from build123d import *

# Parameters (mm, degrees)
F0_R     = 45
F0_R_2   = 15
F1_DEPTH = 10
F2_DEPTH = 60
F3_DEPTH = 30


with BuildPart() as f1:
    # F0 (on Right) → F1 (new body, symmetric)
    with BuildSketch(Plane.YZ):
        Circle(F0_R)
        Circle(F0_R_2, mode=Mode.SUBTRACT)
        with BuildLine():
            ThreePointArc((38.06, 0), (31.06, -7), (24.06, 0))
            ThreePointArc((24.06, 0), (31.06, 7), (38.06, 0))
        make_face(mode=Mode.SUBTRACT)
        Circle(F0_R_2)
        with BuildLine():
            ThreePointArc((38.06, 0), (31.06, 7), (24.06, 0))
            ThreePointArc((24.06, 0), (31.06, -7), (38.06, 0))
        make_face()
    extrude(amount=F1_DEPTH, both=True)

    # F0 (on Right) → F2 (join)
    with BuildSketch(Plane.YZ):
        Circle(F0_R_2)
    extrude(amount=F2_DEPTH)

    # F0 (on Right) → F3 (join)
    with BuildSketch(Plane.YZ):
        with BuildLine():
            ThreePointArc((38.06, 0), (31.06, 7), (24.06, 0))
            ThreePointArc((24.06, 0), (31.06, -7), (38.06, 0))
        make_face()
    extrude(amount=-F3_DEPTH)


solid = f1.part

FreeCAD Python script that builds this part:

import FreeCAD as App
import Part
import Sketcher

doc = App.newDocument("Part")
body = doc.addObject("PartDesign::Body", "Body")

# Sketch on YZ plane
sketch1 = body.newObject("Sketcher::SketchObject", "Sketch")
sketch1.AttachmentSupport = (doc.getObject("YZ_Plane"), [""])
sketch1.MapMode = "FlatFace"
sketch1.addGeometry(Part.Circle(App.Vector(0, 0, 0), App.Vector(0, 0, 1), 45), False)
sketch1.addConstraint(Sketcher.Constraint("Coincident", 0, 3, -1, 1))
sketch1.addConstraint(Sketcher.Constraint("Diameter", 0, 90.0))
pad1 = body.newObject("PartDesign::Pad", "Pad")
pad1.Profile = sketch1
pad1.Length = 20
pad1.Midplane = True

# Sketch on YZ plane
sketch2 = body.newObject("Sketcher::SketchObject", "Sketch001")
sketch2.AttachmentSupport = (doc.getObject("YZ_Plane"), [""])
sketch2.MapMode = "FlatFace"
sketch2.addGeometry(Part.Circle(App.Vector(0, 0, 0), App.Vector(0, 0, 1), 15), False)
sketch2.addConstraint(Sketcher.Constraint("Coincident", 0, 3, -1, 1))
sketch2.addConstraint(Sketcher.Constraint("Diameter", 0, 30.0))
pad2 = body.newObject("PartDesign::Pad", "Pad001")
pad2.Profile = sketch2
pad2.Length = 60

# Sketch on YZ plane
sketch3 = body.newObject("Sketcher::SketchObject", "Sketch002")
sketch3.AttachmentSupport = (doc.getObject("YZ_Plane"), [""])
sketch3.MapMode = "FlatFace"
sketch3.addGeometry(Part.Circle(App.Vector(31, 0, 0), App.Vector(0, 0, 1), 7), False)
sketch3.addConstraint(Sketcher.Constraint("PointOnObject", 0, 3, -1))
sketch3.addConstraint(Sketcher.Constraint("Diameter", 0, 14.0))
sketch3.addConstraint(Sketcher.Constraint("DistanceX", -1, 1, 0, 3, 31.06))
pad3 = body.newObject("PartDesign::Pad", "Pad002")
pad3.Profile = sketch3
pad3.Length = 30
pad3.Reversed = True

doc.recompute()
